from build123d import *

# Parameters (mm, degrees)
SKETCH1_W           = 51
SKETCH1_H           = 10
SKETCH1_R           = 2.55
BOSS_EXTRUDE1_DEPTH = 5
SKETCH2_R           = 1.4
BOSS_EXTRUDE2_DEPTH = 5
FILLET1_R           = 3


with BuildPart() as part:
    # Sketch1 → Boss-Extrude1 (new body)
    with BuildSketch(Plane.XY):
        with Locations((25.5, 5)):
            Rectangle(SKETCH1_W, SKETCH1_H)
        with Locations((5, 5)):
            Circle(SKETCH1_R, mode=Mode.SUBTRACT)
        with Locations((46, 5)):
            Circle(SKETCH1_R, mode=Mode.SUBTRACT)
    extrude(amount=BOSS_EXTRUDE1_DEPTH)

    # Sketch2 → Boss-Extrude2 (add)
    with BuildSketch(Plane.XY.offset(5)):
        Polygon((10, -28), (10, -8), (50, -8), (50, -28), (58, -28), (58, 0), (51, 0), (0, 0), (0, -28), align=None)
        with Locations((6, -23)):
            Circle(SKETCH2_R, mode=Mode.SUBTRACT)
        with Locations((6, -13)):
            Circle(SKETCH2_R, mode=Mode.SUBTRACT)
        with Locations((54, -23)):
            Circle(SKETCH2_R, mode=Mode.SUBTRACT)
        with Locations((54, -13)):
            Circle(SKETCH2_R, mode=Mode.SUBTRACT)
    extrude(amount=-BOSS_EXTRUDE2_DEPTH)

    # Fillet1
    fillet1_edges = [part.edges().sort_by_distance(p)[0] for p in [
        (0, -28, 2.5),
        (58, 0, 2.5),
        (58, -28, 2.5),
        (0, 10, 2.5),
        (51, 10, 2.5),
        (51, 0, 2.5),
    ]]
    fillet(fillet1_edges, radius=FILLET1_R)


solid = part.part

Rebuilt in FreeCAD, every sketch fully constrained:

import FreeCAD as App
import Part
import Sketcher
from FreeCAD import Vector


def edges_at(feature, points):
    """Names of the edges that pass closest to the given points."""
    edges = feature.Shape.Edges
    near = lambda p: min(range(len(edges)), key=lambda i: edges[i].distToShape(Part.Vertex(*p))[0])
    return sorted({f"Edge{near(p) + 1}" for p in points})


def add_polygon(sketch, points):
    """Adds a closed chain of lines whose ends are joined by coincident constraints."""
    first, n = sketch.GeometryCount, len(points)
    for a, b in zip(points, points[1:] + points[:1]):
        sketch.addGeometry(Part.LineSegment(App.Vector(*a, 0), App.Vector(*b, 0)), False)
    for i in range(n):
        sketch.addConstraint(Sketcher.Constraint("Coincident", first + i, 2, first + (i + 1) % n, 1))

doc = App.newDocument("Part")
params = doc.addObject("Spreadsheet::Sheet", "Params")
for row, (alias, value) in enumerate([
    ("sketch1_diameter", "5.1 mm"),
    ("sketch1_width", "51 mm"),
    ("sketch1_height", "10 mm"),
    ("pad1_length", "5 mm"),
    ("sketch2_diameter", "2.8 mm"),
    ("sketch2_width", "40 mm"),
    ("sketch2_width2", "8 mm"),
    ("sketch2_width3", "58 mm"),
    ("sketch2_height", "20 mm"),
    ("pad2_length", "5 mm"),
    ("fillet_radius", "3 mm"),
], start=1):
    params.set(f"A{row}", alias)
    params.set(f"B{row}", "=" + value)
    params.setAlias(f"B{row}", alias)

body = doc.addObject("PartDesign::Body", "Body")

# Sketch on XY plane
sketch1 = doc.addObject("Sketcher::SketchObject", "Sketch")
body.addObject(sketch1)
sketch1.AttachmentSupport = (doc.XY_Plane, [""])
sketch1.MapMode = "FlatFace"
add_polygon(sketch1, [(0, 10), (0, 0), (51, 0), (51, 10)])  # lines 0-3
sketch1.addGeometry(Part.Circle(Vector(5, 5, 0), Vector(0, 0, 1), 2.5), False)  # 4
sketch1.addGeometry(Part.Circle(Vector(46, 5, 0), Vector(0, 0, 1), 2.5), False)  # 5
sketch1.addConstraint(Sketcher.Constraint("Vertical", 0))
sketch1.addConstraint(Sketcher.Constraint("Horizontal", 1))
sketch1.addConstraint(Sketcher.Constraint("Vertical", 2))
sketch1.addConstraint(Sketcher.Constraint("Horizontal", 3))
sketch1.addConstraint(Sketcher.Constraint("Coincident", 0, 2, -1, 1))
sketch1.addConstraint(Sketcher.Constraint("Equal", 4, 5))
sketch1.addConstraint(Sketcher.Constraint("Horizontal", 4, 3, 5, 3))
sketch1.addConstraint(Sketcher.Constraint("Diameter", 4, 5.1))
sketch1.addConstraint(Sketcher.Constraint("DistanceX", 1, 1, 1, 2, 51.0))
sketch1.addConstraint(Sketcher.Constraint("DistanceY", 0, 2, 0, 1, 10.0))
sketch1.addConstraint(Sketcher.Constraint("DistanceX", -1, 1, 4, 3, 5.0))
sketch1.addConstraint(Sketcher.Constraint("DistanceY", -1, 1, 4, 3, 5.0))
sketch1.addConstraint(Sketcher.Constraint("DistanceX", -1, 1, 5, 3, 46.0))
sketch1.setExpression("Constraints[11]", "Params.sketch1_diameter")
sketch1.setExpression("Constraints[12]", "Params.sketch1_width")
sketch1.setExpression("Constraints[13]", "Params.sketch1_height")
pad1 = doc.addObject("PartDesign::Pad", "Pad")
body.addObject(pad1)
pad1.Profile = sketch1
pad1.setExpression("Length", "Params.pad1_length")

# Sketch on XY plane
sketch2 = doc.addObject("Sketcher::SketchObject", "Sketch001")
body.addObject(sketch2)
sketch2.AttachmentSupport = (doc.XY_Plane, [""])
sketch2.MapMode = "FlatFace"
sketch2.AttachmentOffset = App.Placement(Vector(0, 0, 5), App.Rotation())
add_polygon(sketch2, [(10, -28), (10, -8), (50, -8), (50, -28), (58, -28), (58, 0), (0, 0), (0, -28)])  # lines 0-7
sketch2.addGeometry(Part.Circle(Vector(6, -23, 0), Vector(0, 0, 1), 1.4), False)  # 8
sketch2.addGeometry(Part.Circle(Vector(54, -23, 0), Vector(0, 0, 1), 1.4), False)  # 9
sketch2.addGeometry(Part.Circle(Vector(6, -13, 0), Vector(0, 0, 1), 1.4), False)  # 10
sketch2.addGeometry(Part.Circle(Vector(54, -13, 0), Vector(0, 0, 1), 1.4), False)  # 11
sketch2.addConstraint(Sketcher.Constraint("Vertical", 0))
sketch2.addConstraint(Sketcher.Constraint("Horizontal", 1))
sketch2.addConstraint(Sketcher.Constraint("Vertical", 2))
sketch2.addConstraint(Sketcher.Constraint("Horizontal", 3))
sketch2.addConstraint(Sketcher.Constraint("Vertical", 4))
sketch2.addConstraint(Sketcher.Constraint("Horizontal", 5))
sketch2.addConstraint(Sketcher.Constraint("Vertical", 6))
sketch2.addConstraint(Sketcher.Constraint("Horizontal", 7))
sketch2.addConstraint(Sketcher.Constraint("Coincident", 5, 2, -1, 1))
sketch2.addConstraint(Sketcher.Constraint("Equal", 8, 9))
sketch2.addConstraint(Sketcher.Constraint("Equal", 9, 10))
sketch2.addConstraint(Sketcher.Constraint("Equal", 10, 11))
sketch2.addConstraint(Sketcher.Constraint("Horizontal", 8, 3, 9, 3))
sketch2.addConstraint(Sketcher.Constraint("Horizontal", 10, 3, 11, 3))
sketch2.addConstraint(Sketcher.Constraint("Horizontal", 3, 2, 6, 2))
sketch2.addConstraint(Sketcher.Constraint("Vertical", 8, 3, 10, 3))
sketch2.addConstraint(Sketcher.Constraint("Vertical", 9, 3, 11, 3))
sketch2.addConstraint(Sketcher.Constraint("Diameter", 8, 2.8))
sketch2.addConstraint(Sketcher.Constraint("DistanceX", 1, 1, 1, 2, 40.0))
sketch2.addConstraint(Sketcher.Constraint("DistanceX", 3, 1, 3, 2, 8.0))
sketch2.addConstraint(Sketcher.Constraint("DistanceX", 5, 2, 5, 1, 58.0))
sketch2.addConstraint(Sketcher.Constraint("DistanceY", 0, 1, 0, 2, 20.0))
sketch2.addConstraint(Sketcher.Constraint("DistanceY", 4, 1, 4, 2, 28.0))
sketch2.addConstraint(Sketcher.Constraint("DistanceX", -1, 1, 8, 3, 6.0))
sketch2.addConstraint(Sketcher.Constraint("DistanceY", 8, 3, -1, 1, 23.0))
sketch2.addConstraint(Sketcher.Constraint("DistanceX", -1, 1, 9, 3, 54.0))
sketch2.addConstraint(Sketcher.Constraint("DistanceY", 10, 3, -1, 1, 13.0))
sketch2.setExpression("Constraints[25]", "Params.sketch2_diameter")
sketch2.setExpression("Constraints[26]", "Params.sketch2_width")
sketch2.setExpression("Constraints[27]", "Params.sketch2_width2")
sketch2.setExpression("Constraints[28]", "Params.sketch2_width3")
sketch2.setExpression("Constraints[29]", "Params.sketch2_height")
pad2 = doc.addObject("PartDesign::Pad", "Pad001")
body.addObject(pad2)
pad2.Profile = sketch2
pad2.setExpression("Length", "Params.pad2_length")
pad2.Reversed = True
doc.recompute()

fillet = doc.addObject("PartDesign::Fillet", "Fillet")
body.addObject(fillet)
fillet.Base = (pad2, edges_at(pad2, [
    (0, -28, 2.5),
    (58, 0, 2.5),
    (58, -28, 2.5),
    (0, 10, 2.5),
    (51, 10, 2.5),
    (51, 0, 2.5),
]))
fillet.setExpression("Radius", "Params.fillet_radius")

doc.recompute()
